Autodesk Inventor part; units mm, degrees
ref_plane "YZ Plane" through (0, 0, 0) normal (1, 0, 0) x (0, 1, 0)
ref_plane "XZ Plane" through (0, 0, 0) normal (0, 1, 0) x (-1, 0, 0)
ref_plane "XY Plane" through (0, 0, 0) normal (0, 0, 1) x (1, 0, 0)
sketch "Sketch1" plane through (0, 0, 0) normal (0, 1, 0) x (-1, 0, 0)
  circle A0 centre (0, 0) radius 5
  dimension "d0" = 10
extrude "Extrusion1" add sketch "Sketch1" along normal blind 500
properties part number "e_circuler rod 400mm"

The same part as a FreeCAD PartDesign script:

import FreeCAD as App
import Part
import Sketcher
from FreeCAD import Vector
Q = App.Units.Quantity

doc = App.newDocument("Part")
body = doc.addObject("PartDesign::Body", "Body")

sketch1 = body.newObject("Sketcher::SketchObject", "Sketch")
sketch1.AttachmentSupport = (doc.getObject("XZ_Plane"), [""])
sketch1.MapMode = "FlatFace"
sketch1.addGeometry(Part.Circle(Vector(0, 0, 0), Vector(0, 0, 1), 5), False)
sketch1.addConstraint(Sketcher.Constraint("Coincident", 0, 3, -1, 1))
sketch1.addConstraint(Sketcher.Constraint("Diameter", 0, Q("10 mm")))
pad1 = body.newObject("PartDesign::Pad", "Pad")
pad1.Profile = sketch1
pad1.Length = 500
pad1.Reversed = True

doc.recompute()
